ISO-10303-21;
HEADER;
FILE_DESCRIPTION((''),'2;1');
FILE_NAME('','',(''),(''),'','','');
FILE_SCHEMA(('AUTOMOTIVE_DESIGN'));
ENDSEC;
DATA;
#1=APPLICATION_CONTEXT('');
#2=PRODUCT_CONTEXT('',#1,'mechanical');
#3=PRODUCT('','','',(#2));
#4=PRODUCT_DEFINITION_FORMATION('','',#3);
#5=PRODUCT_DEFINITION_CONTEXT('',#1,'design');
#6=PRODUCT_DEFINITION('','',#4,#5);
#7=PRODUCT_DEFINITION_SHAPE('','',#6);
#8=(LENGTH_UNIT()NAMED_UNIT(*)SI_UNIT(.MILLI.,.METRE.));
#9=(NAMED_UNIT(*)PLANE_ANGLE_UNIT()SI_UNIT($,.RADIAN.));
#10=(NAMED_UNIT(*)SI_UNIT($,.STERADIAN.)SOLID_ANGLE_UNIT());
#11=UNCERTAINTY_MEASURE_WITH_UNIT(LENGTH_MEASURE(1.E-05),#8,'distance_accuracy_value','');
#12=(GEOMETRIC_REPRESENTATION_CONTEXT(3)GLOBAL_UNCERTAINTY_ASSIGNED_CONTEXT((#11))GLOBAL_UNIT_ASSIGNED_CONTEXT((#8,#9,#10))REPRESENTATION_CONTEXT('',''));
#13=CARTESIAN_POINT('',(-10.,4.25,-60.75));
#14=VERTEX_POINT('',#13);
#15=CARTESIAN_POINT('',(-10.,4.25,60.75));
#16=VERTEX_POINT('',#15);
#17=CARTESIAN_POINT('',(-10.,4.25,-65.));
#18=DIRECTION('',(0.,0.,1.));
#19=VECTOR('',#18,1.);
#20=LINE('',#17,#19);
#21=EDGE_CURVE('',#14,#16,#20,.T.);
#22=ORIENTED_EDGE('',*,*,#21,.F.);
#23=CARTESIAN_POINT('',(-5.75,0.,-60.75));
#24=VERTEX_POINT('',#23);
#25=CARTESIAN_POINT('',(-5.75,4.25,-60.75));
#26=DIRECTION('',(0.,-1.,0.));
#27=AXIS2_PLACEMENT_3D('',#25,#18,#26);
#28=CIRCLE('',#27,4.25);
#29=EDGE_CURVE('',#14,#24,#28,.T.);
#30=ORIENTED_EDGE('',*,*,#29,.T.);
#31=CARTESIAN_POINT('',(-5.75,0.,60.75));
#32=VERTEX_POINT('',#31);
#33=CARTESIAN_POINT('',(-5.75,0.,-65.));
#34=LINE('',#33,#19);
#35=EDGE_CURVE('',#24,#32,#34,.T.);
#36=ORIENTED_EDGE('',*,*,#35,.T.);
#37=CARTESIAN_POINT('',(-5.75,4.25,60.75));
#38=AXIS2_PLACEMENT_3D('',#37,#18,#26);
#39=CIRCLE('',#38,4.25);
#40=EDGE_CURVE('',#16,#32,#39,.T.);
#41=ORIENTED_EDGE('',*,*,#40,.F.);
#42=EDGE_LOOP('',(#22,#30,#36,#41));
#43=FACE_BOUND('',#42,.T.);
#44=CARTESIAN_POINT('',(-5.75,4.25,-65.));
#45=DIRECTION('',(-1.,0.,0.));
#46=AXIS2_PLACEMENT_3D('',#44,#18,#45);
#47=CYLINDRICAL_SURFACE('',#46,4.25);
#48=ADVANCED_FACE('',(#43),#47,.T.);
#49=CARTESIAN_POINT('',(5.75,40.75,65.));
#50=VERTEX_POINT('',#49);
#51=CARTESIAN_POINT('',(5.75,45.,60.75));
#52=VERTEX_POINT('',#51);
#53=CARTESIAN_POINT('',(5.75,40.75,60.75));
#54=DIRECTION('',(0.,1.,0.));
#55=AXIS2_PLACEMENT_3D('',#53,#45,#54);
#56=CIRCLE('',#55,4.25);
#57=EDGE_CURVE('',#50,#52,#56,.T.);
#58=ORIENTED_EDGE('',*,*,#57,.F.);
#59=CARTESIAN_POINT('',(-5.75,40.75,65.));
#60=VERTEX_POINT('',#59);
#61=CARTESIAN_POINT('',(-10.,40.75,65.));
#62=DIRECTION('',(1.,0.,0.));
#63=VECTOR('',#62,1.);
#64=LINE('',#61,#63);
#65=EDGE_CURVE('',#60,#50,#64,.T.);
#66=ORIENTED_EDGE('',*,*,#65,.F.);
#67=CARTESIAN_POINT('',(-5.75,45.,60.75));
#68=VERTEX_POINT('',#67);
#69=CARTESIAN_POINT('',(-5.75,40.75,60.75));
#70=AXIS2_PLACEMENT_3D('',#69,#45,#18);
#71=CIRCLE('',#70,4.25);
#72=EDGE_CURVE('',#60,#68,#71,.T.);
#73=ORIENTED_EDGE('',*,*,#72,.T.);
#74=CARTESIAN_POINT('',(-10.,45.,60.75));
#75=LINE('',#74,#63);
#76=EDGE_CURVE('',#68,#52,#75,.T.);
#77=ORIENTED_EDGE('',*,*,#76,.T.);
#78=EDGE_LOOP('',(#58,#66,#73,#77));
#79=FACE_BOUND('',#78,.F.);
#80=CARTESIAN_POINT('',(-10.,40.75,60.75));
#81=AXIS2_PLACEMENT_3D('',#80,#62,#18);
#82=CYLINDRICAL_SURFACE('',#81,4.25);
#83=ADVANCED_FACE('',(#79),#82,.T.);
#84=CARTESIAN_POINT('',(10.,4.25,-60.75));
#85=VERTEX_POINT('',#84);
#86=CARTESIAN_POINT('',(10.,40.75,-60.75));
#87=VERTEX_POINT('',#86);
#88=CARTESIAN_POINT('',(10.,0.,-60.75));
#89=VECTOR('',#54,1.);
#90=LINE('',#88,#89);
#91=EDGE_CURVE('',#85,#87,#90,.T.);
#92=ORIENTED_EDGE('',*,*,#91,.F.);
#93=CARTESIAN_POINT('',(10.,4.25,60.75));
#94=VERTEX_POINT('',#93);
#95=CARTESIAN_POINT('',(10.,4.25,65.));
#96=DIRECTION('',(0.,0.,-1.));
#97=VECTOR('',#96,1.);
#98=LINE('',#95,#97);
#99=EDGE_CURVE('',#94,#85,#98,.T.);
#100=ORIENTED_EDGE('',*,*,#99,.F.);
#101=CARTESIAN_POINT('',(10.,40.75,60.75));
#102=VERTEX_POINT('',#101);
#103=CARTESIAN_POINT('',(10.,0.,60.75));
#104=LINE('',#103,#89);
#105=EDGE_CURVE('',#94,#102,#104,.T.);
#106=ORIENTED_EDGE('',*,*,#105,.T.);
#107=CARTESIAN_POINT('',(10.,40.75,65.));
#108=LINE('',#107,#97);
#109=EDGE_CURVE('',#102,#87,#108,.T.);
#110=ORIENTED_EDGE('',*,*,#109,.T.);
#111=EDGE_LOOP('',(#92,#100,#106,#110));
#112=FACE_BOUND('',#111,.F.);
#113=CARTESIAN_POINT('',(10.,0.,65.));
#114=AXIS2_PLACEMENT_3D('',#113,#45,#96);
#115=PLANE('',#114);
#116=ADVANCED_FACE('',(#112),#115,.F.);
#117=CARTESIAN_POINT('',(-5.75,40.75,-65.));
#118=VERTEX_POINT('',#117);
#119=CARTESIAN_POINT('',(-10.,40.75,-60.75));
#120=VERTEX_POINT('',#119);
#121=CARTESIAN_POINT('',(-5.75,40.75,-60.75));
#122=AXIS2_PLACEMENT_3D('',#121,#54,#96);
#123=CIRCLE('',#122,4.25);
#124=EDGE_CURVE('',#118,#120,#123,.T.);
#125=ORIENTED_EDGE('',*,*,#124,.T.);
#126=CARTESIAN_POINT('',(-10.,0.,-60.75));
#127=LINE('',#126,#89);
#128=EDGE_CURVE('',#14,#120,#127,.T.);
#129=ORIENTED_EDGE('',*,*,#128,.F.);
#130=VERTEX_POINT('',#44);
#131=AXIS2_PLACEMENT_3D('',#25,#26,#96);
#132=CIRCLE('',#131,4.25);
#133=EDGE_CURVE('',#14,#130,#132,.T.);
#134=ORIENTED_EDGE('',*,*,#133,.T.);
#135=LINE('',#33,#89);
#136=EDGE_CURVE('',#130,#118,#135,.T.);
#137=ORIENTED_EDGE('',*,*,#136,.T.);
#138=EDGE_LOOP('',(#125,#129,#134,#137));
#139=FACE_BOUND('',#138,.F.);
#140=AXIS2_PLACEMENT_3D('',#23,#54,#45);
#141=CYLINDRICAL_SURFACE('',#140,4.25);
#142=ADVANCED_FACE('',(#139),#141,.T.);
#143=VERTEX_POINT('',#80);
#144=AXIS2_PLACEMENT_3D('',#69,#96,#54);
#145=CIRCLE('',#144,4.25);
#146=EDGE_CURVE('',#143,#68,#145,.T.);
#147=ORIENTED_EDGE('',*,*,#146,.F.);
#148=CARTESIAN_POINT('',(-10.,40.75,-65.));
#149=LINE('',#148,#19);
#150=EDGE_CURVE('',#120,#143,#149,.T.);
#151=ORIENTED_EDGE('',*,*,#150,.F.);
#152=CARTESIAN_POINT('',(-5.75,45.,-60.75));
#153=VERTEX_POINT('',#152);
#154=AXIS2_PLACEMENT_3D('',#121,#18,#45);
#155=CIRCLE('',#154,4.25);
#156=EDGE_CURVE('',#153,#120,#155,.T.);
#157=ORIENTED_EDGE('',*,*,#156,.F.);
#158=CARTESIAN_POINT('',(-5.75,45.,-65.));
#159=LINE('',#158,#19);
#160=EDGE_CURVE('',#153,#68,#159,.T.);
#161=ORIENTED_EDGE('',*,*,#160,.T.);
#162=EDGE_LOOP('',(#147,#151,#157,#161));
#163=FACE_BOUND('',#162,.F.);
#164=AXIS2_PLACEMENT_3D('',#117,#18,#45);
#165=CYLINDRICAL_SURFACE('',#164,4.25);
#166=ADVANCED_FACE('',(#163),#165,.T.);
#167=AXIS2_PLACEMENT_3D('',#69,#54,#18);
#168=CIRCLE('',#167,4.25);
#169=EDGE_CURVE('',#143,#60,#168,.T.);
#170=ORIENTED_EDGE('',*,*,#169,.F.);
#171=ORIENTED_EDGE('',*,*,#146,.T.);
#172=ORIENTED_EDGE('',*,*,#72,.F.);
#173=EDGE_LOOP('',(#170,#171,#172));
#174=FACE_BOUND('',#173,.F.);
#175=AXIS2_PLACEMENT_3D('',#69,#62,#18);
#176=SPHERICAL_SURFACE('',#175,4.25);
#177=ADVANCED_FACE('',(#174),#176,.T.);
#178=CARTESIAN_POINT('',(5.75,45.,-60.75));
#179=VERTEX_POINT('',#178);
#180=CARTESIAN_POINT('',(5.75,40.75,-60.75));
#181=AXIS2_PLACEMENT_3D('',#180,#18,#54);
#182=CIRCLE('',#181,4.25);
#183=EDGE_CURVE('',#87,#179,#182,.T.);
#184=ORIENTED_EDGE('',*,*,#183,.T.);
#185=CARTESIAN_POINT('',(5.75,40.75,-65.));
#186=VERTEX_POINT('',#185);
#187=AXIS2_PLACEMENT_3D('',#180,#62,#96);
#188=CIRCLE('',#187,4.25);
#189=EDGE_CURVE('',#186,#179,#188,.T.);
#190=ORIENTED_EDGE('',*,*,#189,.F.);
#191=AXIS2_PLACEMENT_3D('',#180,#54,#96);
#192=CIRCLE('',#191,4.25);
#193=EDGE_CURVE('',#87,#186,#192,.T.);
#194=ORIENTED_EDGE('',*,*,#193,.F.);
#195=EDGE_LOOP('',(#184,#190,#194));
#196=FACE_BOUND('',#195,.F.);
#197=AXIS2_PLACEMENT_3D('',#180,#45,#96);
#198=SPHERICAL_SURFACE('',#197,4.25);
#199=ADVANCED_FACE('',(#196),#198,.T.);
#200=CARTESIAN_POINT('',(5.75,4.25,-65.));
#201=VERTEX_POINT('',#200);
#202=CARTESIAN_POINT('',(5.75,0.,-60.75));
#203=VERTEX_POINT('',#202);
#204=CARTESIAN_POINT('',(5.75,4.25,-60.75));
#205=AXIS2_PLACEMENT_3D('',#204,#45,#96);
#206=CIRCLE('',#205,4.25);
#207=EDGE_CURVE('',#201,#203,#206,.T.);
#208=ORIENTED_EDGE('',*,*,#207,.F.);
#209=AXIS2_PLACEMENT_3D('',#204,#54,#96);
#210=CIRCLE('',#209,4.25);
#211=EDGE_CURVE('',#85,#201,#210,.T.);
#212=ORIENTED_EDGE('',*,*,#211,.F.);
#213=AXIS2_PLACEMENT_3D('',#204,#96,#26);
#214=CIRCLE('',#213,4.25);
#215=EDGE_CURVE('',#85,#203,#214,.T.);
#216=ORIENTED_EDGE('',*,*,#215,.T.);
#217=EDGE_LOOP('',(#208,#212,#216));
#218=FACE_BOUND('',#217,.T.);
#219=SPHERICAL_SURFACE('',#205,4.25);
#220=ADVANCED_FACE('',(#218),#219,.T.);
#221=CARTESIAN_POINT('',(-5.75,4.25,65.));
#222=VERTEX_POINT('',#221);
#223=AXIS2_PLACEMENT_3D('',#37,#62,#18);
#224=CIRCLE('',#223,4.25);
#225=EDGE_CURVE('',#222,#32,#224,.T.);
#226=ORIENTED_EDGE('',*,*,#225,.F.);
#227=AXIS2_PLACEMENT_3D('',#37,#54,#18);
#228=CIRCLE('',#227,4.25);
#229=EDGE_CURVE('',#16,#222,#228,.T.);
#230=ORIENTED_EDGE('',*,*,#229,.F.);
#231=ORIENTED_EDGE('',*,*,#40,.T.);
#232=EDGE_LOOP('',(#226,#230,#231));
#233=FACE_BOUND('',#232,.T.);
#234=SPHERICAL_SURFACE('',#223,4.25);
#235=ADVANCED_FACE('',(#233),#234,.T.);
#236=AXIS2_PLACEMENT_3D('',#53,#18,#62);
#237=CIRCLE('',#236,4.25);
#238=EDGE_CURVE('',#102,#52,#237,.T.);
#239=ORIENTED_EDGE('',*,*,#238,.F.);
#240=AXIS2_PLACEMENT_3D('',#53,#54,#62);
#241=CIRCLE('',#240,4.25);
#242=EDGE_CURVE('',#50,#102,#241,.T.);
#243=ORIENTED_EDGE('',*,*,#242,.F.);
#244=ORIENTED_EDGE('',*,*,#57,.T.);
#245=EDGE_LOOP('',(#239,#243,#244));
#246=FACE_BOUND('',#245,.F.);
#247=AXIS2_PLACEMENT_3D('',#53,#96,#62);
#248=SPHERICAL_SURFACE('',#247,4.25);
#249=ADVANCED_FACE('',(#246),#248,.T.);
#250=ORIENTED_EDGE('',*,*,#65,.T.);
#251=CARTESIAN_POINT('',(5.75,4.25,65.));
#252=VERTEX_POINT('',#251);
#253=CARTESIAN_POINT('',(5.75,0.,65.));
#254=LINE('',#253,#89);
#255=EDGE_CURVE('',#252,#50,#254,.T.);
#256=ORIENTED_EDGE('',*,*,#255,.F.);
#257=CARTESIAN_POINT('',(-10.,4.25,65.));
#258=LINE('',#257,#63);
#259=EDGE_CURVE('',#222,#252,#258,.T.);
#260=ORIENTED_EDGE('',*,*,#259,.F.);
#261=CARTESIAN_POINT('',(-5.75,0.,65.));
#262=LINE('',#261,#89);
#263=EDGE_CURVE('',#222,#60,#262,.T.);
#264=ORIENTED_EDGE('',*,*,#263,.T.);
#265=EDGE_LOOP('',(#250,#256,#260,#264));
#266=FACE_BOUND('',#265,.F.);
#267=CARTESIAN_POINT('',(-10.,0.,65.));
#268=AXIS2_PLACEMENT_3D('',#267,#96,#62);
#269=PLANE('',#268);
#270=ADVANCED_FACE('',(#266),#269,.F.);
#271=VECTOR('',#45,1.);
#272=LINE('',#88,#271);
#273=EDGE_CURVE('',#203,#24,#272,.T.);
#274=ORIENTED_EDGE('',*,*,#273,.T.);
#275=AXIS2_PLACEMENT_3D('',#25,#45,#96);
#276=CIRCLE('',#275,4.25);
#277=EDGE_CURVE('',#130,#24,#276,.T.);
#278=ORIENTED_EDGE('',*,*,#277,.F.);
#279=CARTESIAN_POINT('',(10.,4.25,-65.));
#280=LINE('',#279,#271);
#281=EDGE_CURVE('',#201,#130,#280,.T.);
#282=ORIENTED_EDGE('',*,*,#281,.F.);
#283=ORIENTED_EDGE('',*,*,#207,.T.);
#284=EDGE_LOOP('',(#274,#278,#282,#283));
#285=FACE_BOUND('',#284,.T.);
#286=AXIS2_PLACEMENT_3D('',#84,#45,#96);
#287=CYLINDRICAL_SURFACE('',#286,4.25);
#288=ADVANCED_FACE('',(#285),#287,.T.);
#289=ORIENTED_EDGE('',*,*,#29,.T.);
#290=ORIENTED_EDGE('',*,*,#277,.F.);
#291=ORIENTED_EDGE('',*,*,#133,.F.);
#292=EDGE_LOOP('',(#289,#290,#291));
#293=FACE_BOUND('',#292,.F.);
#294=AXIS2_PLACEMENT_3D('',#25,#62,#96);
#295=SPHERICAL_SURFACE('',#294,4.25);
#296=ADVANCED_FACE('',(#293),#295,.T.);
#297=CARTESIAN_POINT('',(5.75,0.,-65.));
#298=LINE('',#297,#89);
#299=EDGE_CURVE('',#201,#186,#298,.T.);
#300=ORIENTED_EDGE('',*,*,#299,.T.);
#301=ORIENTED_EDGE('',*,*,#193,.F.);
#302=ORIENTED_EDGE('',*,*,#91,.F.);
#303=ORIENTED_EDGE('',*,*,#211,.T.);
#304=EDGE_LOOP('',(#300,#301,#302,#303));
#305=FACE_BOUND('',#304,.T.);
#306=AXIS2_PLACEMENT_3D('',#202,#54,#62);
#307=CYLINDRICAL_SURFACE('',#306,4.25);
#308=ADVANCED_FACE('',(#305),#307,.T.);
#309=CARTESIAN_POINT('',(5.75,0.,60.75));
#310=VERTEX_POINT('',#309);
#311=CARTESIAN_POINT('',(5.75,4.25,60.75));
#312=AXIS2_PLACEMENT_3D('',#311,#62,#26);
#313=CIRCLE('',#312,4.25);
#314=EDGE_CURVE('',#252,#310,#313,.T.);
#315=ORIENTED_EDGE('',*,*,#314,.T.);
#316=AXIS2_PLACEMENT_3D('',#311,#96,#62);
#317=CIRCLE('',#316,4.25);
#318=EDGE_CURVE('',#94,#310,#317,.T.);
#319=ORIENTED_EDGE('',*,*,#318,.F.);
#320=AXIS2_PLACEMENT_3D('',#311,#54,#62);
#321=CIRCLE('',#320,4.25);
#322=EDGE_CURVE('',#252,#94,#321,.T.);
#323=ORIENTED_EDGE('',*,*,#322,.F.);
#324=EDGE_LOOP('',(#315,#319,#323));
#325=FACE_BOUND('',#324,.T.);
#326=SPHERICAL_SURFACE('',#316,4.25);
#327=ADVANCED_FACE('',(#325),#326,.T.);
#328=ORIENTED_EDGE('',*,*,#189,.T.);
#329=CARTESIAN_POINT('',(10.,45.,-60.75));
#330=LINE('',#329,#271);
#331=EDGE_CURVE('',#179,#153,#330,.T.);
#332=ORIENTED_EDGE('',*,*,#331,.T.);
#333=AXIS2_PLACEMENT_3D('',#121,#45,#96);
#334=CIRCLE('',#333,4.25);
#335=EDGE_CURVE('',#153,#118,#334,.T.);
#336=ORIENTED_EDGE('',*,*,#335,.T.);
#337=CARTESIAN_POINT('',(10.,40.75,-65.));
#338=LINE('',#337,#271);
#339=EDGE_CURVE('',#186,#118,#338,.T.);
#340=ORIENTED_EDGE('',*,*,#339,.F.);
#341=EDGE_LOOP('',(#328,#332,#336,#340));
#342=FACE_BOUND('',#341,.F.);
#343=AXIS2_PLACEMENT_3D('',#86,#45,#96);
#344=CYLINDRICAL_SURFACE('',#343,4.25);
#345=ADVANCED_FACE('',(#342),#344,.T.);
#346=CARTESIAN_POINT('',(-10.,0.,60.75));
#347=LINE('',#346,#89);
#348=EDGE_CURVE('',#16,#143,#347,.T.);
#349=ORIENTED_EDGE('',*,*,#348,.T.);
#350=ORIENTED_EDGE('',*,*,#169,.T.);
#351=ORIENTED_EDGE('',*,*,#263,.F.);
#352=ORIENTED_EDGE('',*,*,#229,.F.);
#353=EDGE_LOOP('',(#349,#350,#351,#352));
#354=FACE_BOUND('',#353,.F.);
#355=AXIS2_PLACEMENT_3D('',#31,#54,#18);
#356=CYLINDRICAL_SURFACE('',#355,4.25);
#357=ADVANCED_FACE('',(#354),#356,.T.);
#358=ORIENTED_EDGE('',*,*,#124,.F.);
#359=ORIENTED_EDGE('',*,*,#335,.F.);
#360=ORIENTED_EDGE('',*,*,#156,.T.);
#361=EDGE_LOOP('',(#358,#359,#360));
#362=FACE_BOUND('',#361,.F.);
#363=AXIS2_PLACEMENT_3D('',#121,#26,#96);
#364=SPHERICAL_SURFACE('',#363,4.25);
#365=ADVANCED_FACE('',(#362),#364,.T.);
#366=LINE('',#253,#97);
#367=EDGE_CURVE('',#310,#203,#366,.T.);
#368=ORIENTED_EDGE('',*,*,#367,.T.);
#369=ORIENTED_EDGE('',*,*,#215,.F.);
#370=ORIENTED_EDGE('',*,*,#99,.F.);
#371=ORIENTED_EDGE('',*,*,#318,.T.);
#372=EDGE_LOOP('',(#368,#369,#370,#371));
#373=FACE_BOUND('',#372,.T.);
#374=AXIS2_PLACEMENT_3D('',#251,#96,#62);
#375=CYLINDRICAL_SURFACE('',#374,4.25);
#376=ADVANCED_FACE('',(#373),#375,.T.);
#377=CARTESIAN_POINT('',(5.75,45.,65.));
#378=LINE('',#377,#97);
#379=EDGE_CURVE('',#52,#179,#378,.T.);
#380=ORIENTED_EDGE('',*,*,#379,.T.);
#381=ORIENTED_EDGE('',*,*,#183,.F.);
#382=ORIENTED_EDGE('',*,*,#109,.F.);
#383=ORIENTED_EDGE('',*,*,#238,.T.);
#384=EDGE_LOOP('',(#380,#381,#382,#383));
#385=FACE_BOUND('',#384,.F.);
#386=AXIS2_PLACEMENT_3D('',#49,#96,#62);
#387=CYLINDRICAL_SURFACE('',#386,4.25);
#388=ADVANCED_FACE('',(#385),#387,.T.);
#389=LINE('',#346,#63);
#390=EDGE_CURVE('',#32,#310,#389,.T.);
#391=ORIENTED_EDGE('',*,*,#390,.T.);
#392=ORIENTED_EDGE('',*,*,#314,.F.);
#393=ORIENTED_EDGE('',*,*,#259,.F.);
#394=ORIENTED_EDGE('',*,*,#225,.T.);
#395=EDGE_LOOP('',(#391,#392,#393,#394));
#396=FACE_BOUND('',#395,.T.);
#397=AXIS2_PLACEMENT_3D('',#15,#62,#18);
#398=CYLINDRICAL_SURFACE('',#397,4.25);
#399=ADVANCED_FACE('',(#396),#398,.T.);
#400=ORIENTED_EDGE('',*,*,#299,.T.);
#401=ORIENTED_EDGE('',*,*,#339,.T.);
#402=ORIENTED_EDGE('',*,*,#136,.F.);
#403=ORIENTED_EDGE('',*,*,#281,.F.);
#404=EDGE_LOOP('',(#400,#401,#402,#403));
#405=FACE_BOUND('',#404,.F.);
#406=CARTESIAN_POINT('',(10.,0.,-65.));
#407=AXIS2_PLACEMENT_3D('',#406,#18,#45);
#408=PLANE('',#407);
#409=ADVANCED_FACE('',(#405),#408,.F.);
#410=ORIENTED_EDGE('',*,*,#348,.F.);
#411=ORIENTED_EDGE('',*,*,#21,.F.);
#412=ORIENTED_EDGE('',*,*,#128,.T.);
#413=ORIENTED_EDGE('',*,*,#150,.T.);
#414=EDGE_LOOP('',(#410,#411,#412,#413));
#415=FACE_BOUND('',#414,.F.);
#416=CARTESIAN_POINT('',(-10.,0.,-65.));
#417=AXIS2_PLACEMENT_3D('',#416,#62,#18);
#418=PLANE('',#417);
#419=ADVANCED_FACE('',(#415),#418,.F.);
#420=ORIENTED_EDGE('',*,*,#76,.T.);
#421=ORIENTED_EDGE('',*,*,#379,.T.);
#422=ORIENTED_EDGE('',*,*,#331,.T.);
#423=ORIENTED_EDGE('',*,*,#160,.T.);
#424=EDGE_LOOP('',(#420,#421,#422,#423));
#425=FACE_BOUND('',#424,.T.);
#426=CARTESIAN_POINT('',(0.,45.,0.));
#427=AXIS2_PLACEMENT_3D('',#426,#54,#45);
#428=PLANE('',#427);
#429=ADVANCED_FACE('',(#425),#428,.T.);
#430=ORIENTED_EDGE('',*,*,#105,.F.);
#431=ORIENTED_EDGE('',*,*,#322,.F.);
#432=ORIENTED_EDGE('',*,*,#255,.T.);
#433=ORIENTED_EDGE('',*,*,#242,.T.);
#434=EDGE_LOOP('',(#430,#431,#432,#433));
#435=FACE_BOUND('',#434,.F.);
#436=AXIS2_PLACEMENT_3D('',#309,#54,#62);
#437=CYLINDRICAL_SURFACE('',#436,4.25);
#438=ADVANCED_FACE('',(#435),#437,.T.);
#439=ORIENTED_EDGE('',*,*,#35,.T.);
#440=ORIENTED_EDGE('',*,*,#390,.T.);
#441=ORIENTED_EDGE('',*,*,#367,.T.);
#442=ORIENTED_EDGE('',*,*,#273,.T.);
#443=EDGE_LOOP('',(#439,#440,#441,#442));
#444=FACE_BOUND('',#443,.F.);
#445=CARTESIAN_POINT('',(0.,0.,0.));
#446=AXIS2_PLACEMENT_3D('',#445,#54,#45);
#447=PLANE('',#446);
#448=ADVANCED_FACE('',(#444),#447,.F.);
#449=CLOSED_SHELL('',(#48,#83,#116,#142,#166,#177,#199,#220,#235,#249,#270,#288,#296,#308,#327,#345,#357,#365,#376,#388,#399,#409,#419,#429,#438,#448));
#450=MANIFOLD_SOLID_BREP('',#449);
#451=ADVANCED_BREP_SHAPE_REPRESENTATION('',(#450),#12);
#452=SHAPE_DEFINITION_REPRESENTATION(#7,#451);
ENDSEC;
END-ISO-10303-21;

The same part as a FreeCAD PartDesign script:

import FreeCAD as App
import Part
import Sketcher

doc = App.newDocument("Part")
body = doc.addObject("PartDesign::Body", "Body")

# Sketch on XZ plane
sketch1 = body.newObject("Sketcher::SketchObject", "Sketch")
sketch1.AttachmentSupport = (doc.getObject("XZ_Plane"), [""])
sketch1.MapMode = "FlatFace"
sketch1.addGeometry(Part.LineSegment(App.Vector(10, 65, 0), App.Vector(10, -65, 0)), False)
sketch1.addGeometry(Part.LineSegment(App.Vector(10, -65, 0), App.Vector(-10, -65, 0)), False)
sketch1.addGeometry(Part.LineSegment(App.Vector(-10, -65, 0), App.Vector(-10, 65, 0)), False)
sketch1.addGeometry(Part.LineSegment(App.Vector(-10, 65, 0), App.Vector(10, 65, 0)), False)
sketch1.addConstraint(Sketcher.Constraint("Coincident", 0, 2, 1, 1))
sketch1.addConstraint(Sketcher.Constraint("Coincident", 1, 2, 2, 1))
sketch1.addConstraint(Sketcher.Constraint("Coincident", 2, 2, 3, 1))
sketch1.addConstraint(Sketcher.Constraint("Coincident", 3, 2, 0, 1))
sketch1.addConstraint(Sketcher.Constraint("Vertical", 0))
sketch1.addConstraint(Sketcher.Constraint("Horizontal", 1))
sketch1.addConstraint(Sketcher.Constraint("Vertical", 2))
sketch1.addConstraint(Sketcher.Constraint("Horizontal", 3))
sketch1.addConstraint(Sketcher.Constraint("Symmetric", 0, 2, 2, 2, -1, 1))
sketch1.addConstraint(Sketcher.Constraint("DistanceX", 1, 2, 1, 1, 20.0))
sketch1.addConstraint(Sketcher.Constraint("DistanceY", 0, 2, 0, 1, 130.0))
pad1 = body.newObject("PartDesign::Pad", "Pad")
pad1.Profile = sketch1
pad1.Length = 45
pad1.Reversed = True
doc.recompute()

fillet = body.newObject("PartDesign::Fillet", "Fillet")
fillet.Base = (pad1, ["Edge1"])
fillet.UseAllEdges = True
fillet.Radius = 4.25

doc.recompute()
